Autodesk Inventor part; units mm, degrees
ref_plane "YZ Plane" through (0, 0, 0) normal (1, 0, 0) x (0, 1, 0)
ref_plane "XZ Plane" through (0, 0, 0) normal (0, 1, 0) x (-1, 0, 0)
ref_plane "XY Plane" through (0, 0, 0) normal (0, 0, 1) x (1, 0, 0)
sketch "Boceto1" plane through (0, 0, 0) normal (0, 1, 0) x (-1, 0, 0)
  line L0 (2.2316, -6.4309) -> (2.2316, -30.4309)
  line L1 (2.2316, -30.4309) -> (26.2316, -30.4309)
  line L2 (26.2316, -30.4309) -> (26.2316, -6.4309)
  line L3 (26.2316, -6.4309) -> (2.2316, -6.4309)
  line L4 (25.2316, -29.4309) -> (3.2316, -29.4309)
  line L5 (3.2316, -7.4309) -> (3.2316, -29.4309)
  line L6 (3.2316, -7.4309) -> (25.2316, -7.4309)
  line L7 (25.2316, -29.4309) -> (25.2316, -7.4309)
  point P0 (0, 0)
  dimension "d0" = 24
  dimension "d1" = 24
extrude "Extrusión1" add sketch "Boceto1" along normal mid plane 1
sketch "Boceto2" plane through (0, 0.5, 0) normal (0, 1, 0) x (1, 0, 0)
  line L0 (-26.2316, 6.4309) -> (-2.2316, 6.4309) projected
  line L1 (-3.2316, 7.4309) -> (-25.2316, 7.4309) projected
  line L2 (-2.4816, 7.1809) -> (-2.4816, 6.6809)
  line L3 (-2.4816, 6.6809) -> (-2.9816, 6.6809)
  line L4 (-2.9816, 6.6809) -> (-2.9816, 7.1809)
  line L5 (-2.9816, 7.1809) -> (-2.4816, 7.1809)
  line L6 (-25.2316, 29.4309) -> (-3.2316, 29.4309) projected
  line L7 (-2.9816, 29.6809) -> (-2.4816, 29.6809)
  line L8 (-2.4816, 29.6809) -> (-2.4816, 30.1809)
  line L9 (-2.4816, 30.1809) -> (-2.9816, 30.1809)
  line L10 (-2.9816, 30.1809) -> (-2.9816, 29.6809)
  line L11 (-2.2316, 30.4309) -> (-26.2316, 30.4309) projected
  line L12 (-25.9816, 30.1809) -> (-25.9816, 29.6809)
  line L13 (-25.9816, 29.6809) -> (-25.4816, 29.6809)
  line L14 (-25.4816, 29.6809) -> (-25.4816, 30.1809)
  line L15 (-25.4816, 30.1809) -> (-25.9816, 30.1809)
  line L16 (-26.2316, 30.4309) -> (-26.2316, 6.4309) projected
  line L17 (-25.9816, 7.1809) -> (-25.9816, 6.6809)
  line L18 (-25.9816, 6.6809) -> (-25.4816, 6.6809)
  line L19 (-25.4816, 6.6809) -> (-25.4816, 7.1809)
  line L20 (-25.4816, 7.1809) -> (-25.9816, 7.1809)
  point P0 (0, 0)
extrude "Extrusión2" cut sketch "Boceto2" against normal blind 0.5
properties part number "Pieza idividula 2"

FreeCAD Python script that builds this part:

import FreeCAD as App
import Part
import Sketcher


def add_polygon(sketch, points):
    """Adds a closed chain of lines whose ends are joined by coincident constraints."""
    first, n = sketch.GeometryCount, len(points)
    for a, b in zip(points, points[1:] + points[:1]):
        sketch.addGeometry(Part.LineSegment(App.Vector(*a, 0), App.Vector(*b, 0)), False)
    for i in range(n):
        sketch.addConstraint(Sketcher.Constraint("Coincident", first + i, 2, first + (i + 1) % n, 1))

doc = App.newDocument("Part")
params = doc.addObject("Spreadsheet::Sheet", "Params")
for row, (alias, value) in enumerate([
    ("sketch1_width", "24 mm"),
    ("sketch1_width2", "22 mm"),
    ("pad1_length", "1 mm"),
    ("sketch2_width", "0.5 mm"),
    ("pocket1_length", "0.5 mm"),
], start=1):
    params.set(f"A{row}", alias)
    params.set(f"B{row}", "=" + value)
    params.setAlias(f"B{row}", alias)

body = doc.addObject("PartDesign::Body", "Body")

sketch1 = body.newObject("Sketcher::SketchObject", "Sketch")
sketch1.AttachmentSupport = (doc.getObject("XZ_Plane"), [""])
sketch1.MapMode = "FlatFace"
add_polygon(sketch1, [(-26.2316, -6.4309), (-2.2316, -6.4309), (-2.2316, -30.4309), (-26.2316, -30.4309)])
add_polygon(sketch1, [(-25.2316, -7.4309), (-25.2316, -29.4309), (-3.2316, -29.4309), (-3.2316, -7.4309)])
sketch1.addConstraint(Sketcher.Constraint("Horizontal", 0))
sketch1.addConstraint(Sketcher.Constraint("Vertical", 1))
sketch1.addConstraint(Sketcher.Constraint("Horizontal", 2))
sketch1.addConstraint(Sketcher.Constraint("Vertical", 3))
sketch1.addConstraint(Sketcher.Constraint("Vertical", 4))
sketch1.addConstraint(Sketcher.Constraint("Horizontal", 5))
sketch1.addConstraint(Sketcher.Constraint("Vertical", 6))
sketch1.addConstraint(Sketcher.Constraint("Horizontal", 7))
sketch1.addConstraint(Sketcher.Constraint("Equal", 2, 1))
sketch1.addConstraint(Sketcher.Constraint("Equal", 7, 4))
sketch1.addConstraint(Sketcher.Constraint("DistanceX", 0, 1, 0, 2, 24.0))
sketch1.addConstraint(Sketcher.Constraint("DistanceX", 5, 1, 5, 2, 22.0))
sketch1.addConstraint(Sketcher.Constraint("DistanceX", 2, 2, 4, 2, 1.0))
sketch1.addConstraint(Sketcher.Constraint("DistanceY", 2, 2, 4, 2, 1.0))
sketch1.addConstraint(Sketcher.Constraint("DistanceY", 0, 2, -1, 1, 6.431))
sketch1.addConstraint(Sketcher.Constraint("DistanceX", 0, 2, -1, 1, 2.2316))
sketch1.setExpression("Constraints[18]", "Params.sketch1_width")
sketch1.setExpression("Constraints[19]", "Params.sketch1_width2")
pad1 = body.newObject("PartDesign::Pad", "Pad")
pad1.Profile = sketch1
pad1.setExpression("Length", "Params.pad1_length")
pad1.Midplane = True

sketch2 = body.newObject("Sketcher::SketchObject", "Sketch001")
sketch2.AttachmentSupport = (doc.getObject("XZ_Plane"), [""])
sketch2.MapMode = "FlatFace"
sketch2.AttachmentOffset = App.Placement(App.Vector(0, 0, -0.5), App.Rotation())
add_polygon(sketch2, [(-2.4816, -6.6809), (-2.4816, -7.1809), (-2.9816, -7.1809), (-2.9816, -6.6809)])
add_polygon(sketch2, [(-2.9816, -30.1809), (-2.9816, -29.6809), (-2.4816, -29.6809), (-2.4816, -30.1809)])
add_polygon(sketch2, [(-25.4816, -30.1809), (-25.9816, -30.1809), (-25.9816, -29.6809), (-25.4816, -29.6809)])
add_polygon(sketch2, [(-25.4816, -7.1809), (-25.9816, -7.1809), (-25.9816, -6.6809), (-25.4816, -6.6809)])
sketch2.addConstraint(Sketcher.Constraint("Vertical", 0))
sketch2.addConstraint(Sketcher.Constraint("Horizontal", 1))
sketch2.addConstraint(Sketcher.Constraint("Vertical", 2))
sketch2.addConstraint(Sketcher.Constraint("Horizontal", 3))
sketch2.addConstraint(Sketcher.Constraint("Vertical", 4))
sketch2.addConstraint(Sketcher.Constraint("Horizontal", 5))
sketch2.addConstraint(Sketcher.Constraint("Vertical", 6))
sketch2.addConstraint(Sketcher.Constraint("Horizontal", 7))
sketch2.addConstraint(Sketcher.Constraint("Horizontal", 8))
sketch2.addConstraint(Sketcher.Constraint("Vertical", 9))
sketch2.addConstraint(Sketcher.Constraint("Horizontal", 10))
sketch2.addConstraint(Sketcher.Constraint("Vertical", 11))
sketch2.addConstraint(Sketcher.Constraint("Horizontal", 12))
sketch2.addConstraint(Sketcher.Constraint("Vertical", 13))
sketch2.addConstraint(Sketcher.Constraint("Horizontal", 14))
sketch2.addConstraint(Sketcher.Constraint("Vertical", 15))
sketch2.addConstraint(Sketcher.Constraint("Horizontal", 7, 2, 8, 2))
sketch2.addConstraint(Sketcher.Constraint("Horizontal", 5, 2, 9, 2))
sketch2.addConstraint(Sketcher.Constraint("Horizontal", 1, 2, 12, 2))
sketch2.addConstraint(Sketcher.Constraint("Horizontal", 3, 2, 13, 2))
sketch2.addConstraint(Sketcher.Constraint("Vertical", 2, 2, 4, 2))
sketch2.addConstraint(Sketcher.Constraint("Vertical", 3, 2, 5, 2))
sketch2.addConstraint(Sketcher.Constraint("Vertical", 9, 2, 12, 2))
sketch2.addConstraint(Sketcher.Constraint("Vertical", 11, 2, 14, 2))
sketch2.addConstraint(Sketcher.Constraint("Equal", 7, 8))
sketch2.addConstraint(Sketcher.Constraint("Equal", 14, 0))
sketch2.addConstraint(Sketcher.Constraint("Equal", 2, 4))
sketch2.addConstraint(Sketcher.Constraint("DistanceX", 1, 2, 1, 1, 0.5))
sketch2.addConstraint(Sketcher.Constraint("DistanceY", 4, 2, 2, 2, 23.0))
sketch2.addConstraint(Sketcher.Constraint("DistanceX", 8, 2, 7, 2, 23.0))
sketch2.addConstraint(Sketcher.Constraint("DistanceY", 0, 2, -1, 1, 7.181))
sketch2.addConstraint(Sketcher.Constraint("DistanceX", 0, 2, -1, 1, 2.4816))
sketch2.setExpression("Constraints[43]", "Params.sketch2_width")
pocket1 = body.newObject("PartDesign::Pocket", "Pocket")
pocket1.Profile = sketch2
pocket1.setExpression("Length", "Params.pocket1_length")
pocket1.Reversed = True

doc.recompute()
